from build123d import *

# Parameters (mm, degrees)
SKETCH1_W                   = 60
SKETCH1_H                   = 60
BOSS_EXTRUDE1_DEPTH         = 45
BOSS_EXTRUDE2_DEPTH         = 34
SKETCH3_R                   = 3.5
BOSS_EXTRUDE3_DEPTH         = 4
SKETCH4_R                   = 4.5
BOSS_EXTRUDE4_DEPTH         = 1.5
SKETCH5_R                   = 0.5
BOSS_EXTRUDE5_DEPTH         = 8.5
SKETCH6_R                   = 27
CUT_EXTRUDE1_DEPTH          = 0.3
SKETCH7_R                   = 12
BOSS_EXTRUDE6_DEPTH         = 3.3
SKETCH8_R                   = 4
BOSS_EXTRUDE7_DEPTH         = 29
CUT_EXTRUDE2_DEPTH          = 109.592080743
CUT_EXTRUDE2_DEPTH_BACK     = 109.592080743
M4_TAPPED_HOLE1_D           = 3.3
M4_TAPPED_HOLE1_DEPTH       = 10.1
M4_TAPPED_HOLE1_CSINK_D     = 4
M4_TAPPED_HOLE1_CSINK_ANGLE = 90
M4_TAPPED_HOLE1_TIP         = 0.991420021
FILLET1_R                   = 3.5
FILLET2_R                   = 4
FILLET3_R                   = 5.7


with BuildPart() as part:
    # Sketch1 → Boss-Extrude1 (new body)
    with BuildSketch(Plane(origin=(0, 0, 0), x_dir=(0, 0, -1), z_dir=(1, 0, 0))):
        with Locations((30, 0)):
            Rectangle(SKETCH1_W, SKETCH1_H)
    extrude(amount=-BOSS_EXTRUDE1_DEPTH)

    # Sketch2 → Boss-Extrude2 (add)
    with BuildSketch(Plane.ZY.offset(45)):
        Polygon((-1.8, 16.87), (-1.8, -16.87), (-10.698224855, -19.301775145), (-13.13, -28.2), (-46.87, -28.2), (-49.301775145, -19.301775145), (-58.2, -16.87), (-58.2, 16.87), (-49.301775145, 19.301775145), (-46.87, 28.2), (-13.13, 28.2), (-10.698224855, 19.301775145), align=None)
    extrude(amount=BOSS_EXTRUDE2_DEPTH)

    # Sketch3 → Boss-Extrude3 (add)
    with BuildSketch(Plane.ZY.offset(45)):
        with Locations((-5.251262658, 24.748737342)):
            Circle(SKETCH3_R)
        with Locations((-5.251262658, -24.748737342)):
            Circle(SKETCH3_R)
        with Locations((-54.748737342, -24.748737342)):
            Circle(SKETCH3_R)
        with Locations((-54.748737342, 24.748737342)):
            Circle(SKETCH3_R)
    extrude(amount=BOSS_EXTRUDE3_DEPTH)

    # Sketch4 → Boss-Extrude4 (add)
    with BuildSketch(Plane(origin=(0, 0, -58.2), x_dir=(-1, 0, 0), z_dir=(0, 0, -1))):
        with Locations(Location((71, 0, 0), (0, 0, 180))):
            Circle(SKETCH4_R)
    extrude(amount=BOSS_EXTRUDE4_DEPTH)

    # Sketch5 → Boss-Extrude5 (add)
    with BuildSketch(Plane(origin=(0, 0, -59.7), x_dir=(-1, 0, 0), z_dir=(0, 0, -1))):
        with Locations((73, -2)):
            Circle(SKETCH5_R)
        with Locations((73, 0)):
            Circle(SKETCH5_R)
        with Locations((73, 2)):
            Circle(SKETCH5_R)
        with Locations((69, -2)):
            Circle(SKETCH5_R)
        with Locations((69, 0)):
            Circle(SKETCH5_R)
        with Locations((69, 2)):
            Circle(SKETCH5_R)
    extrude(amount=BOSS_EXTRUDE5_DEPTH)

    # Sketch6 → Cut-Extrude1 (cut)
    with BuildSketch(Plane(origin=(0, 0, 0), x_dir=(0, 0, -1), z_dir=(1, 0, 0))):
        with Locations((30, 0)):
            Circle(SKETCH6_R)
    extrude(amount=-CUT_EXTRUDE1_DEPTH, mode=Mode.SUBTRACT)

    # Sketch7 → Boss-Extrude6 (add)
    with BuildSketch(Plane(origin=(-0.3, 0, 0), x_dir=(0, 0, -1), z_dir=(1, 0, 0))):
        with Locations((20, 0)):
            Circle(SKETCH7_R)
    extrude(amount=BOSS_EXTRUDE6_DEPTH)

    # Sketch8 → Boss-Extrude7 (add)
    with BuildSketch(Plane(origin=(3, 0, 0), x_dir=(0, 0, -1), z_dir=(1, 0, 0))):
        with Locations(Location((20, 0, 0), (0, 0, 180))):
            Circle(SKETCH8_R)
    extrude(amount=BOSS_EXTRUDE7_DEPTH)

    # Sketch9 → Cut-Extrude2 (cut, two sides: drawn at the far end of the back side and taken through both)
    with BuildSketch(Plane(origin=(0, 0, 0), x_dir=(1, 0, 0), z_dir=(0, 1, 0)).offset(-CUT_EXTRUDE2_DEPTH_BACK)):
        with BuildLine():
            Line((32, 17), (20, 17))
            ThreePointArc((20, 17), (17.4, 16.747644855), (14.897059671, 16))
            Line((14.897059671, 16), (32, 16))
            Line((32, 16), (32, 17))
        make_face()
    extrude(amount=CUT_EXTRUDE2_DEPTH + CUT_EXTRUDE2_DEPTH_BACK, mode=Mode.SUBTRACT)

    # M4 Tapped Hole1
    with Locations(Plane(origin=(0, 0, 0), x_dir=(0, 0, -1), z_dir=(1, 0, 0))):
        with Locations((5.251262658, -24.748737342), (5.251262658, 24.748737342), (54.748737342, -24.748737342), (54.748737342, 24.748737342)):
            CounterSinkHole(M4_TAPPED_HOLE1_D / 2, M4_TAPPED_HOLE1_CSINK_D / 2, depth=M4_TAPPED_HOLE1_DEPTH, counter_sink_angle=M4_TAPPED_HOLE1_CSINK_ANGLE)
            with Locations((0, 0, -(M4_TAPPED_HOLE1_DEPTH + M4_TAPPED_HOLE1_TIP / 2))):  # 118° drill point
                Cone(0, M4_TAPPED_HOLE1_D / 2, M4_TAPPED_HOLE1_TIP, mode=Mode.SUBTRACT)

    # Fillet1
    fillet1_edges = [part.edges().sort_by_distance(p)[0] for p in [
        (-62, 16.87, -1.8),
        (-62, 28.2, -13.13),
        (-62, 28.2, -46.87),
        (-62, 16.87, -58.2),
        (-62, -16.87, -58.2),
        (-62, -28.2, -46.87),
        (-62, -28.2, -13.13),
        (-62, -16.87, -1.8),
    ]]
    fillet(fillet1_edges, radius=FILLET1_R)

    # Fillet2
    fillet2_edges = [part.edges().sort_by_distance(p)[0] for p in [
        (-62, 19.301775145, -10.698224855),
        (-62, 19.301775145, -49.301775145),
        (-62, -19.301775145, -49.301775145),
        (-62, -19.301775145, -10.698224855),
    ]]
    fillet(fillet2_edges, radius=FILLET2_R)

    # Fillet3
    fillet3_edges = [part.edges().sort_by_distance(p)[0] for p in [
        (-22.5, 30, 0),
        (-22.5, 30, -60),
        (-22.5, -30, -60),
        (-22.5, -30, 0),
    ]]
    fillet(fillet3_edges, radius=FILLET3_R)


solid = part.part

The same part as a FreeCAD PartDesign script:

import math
import FreeCAD as App
import Part
import Sketcher


def edges_at(feature, points):
    """Names of the edges that pass closest to the given points."""
    edges = feature.Shape.Edges
    near = lambda p: min(range(len(edges)), key=lambda i: edges[i].distToShape(Part.Vertex(*p))[0])
    return sorted({f"Edge{near(p) + 1}" for p in points})


def add_polygon(sketch, points):
    """Adds a closed chain of lines whose ends are joined by coincident constraints."""
    first, n = sketch.GeometryCount, len(points)
    for a, b in zip(points, points[1:] + points[:1]):
        sketch.addGeometry(Part.LineSegment(App.Vector(*a, 0), App.Vector(*b, 0)), False)
    for i in range(n):
        sketch.addConstraint(Sketcher.Constraint("Coincident", first + i, 2, first + (i + 1) % n, 1))

doc = App.newDocument("Part")
body = doc.addObject("PartDesign::Body", "Body")

sketch1 = body.newObject("Sketcher::SketchObject", "Sketch")
sketch1.AttachmentSupport = (doc.getObject("YZ_Plane"), [""])
sketch1.MapMode = "FlatFace"
add_polygon(sketch1, [(30, 0), (-30, 0), (-30, -60), (30, -60)])
sketch1.addConstraint([
    Sketcher.Constraint("Horizontal", 0),
    Sketcher.Constraint("Vertical", 1),
    Sketcher.Constraint("Horizontal", 2),
    Sketcher.Constraint("Vertical", 3),
    Sketcher.Constraint("Symmetric", 0, 2, 3, 2, -1, 1),
    Sketcher.Constraint("Equal", 2, 1),
    Sketcher.Constraint("DistanceX", 0, 2, 0, 1, 60.0),
])
pad1 = body.newObject("PartDesign::Pad", "Pad")
pad1.Profile = sketch1
pad1.Length = 45
pad1.Reversed = True

sketch2 = body.newObject("Sketcher::SketchObject", "Sketch001")
sketch2.AttachmentSupport = (doc.getObject("YZ_Plane"), [""])
sketch2.MapMode = "FlatFace"
sketch2.AttachmentOffset = App.Placement(App.Vector(0, 0, -45), App.Rotation())
add_polygon(sketch2, [(-16.87, -1.8), (16.87, -1.8), (19.301775, -10.698225), (28.2, -13.13), (28.2, -46.87), (19.301775, -49.301775), (16.87, -58.2), (-16.87, -58.2), (-19.301775, -49.301775), (-28.2, -46.87), (-28.2, -13.13), (-19.301775, -10.698225)])
sketch2.addConstraint([
    Sketcher.Constraint("Horizontal", 0),
    Sketcher.Constraint("Vertical", 3),
    Sketcher.Constraint("Horizontal", 6),
    Sketcher.Constraint("Vertical", 9),
    Sketcher.Constraint("Symmetric", 4, 2, 7, 2, -2),
    Sketcher.Constraint("Symmetric", 3, 2, 8, 2, -2),
    Sketcher.Constraint("Symmetric", 1, 2, 10, 2, -2),
    Sketcher.Constraint("Perpendicular", 1, 4),
    Sketcher.Constraint("Perpendicular", 2, 5),
    Sketcher.Constraint("Perpendicular", 4, 7),
    Sketcher.Constraint("Perpendicular", 5, 8),
    Sketcher.Constraint("Perpendicular", 7, 10),
    Sketcher.Constraint("Perpendicular", 8, 11),
    Sketcher.Constraint("Vertical", 1, 2, 4, 2),
    Sketcher.Constraint("Vertical", 0, 2, 5, 2),
    Sketcher.Constraint("Equal", 6, 3),
    Sketcher.Constraint("Equal", 1, 2),
    Sketcher.Constraint("DistanceX", 0, 1, 0, 2, 33.74),
    Sketcher.Constraint("DistanceY", 0, 2, -1, 1, 1.8),
    Sketcher.Constraint("DistanceX", -1, 1, 2, 2, 28.2),
    Sketcher.Constraint("Distance", 1, 9.224529),
])
pad2 = body.newObject("PartDesign::Pad", "Pad001")
pad2.Profile = sketch2
pad2.Length = 34
pad2.Reversed = True

sketch3 = body.newObject("Sketcher::SketchObject", "Sketch002")
sketch3.AttachmentSupport = (doc.getObject("YZ_Plane"), [""])
sketch3.MapMode = "FlatFace"
sketch3.AttachmentOffset = App.Placement(App.Vector(0, 0, -45), App.Rotation())
sketch3.addGeometry([
    Part.Circle(App.Vector(24.748737, -5.251263, 0), App.Vector(0, 0, 1), 3.5),
    Part.Circle(App.Vector(-24.748737, -5.251263, 0), App.Vector(0, 0, 1), 3.5),
    Part.Circle(App.Vector(-24.748737, -54.748737, 0), App.Vector(0, 0, 1), 3.5),
    Part.Circle(App.Vector(24.748737, -54.748737, 0), App.Vector(0, 0, 1), 3.5),
], False)
sketch3.addConstraint([
    Sketcher.Constraint("Equal", 0, 1),
    Sketcher.Constraint("Equal", 1, 2),
    Sketcher.Constraint("Equal", 2, 3),
    Sketcher.Constraint("Symmetric", 0, 3, 1, 3, -2),
    Sketcher.Constraint("Symmetric", 2, 3, 3, 3, -2),
    Sketcher.Constraint("Vertical", 1, 3, 2, 3),
    Sketcher.Constraint("Diameter", 0, 7.0),
    Sketcher.Constraint("DistanceX", -1, 1, 0, 3, 24.748737),
    Sketcher.Constraint("DistanceY", 0, 3, -1, 1, 5.251263),
    Sketcher.Constraint("DistanceY", 2, 3, -1, 1, 54.748737),
])
pad3 = body.newObject("PartDesign::Pad", "Pad002")
pad3.Profile = sketch3
pad3.Length = 4
pad3.Reversed = True

sketch4 = body.newObject("Sketcher::SketchObject", "Sketch003")
sketch4.AttachmentSupport = (doc.getObject("XY_Plane"), [""])
sketch4.MapMode = "FlatFace"
sketch4.AttachmentOffset = App.Placement(App.Vector(0, 0, -58.2), App.Rotation())
sketch4.addGeometry(Part.Circle(App.Vector(-71, 0, 0), App.Vector(0, 0, 1), 4.5), False)
sketch4.addConstraint([
    Sketcher.Constraint("PointOnObject", 0, 3, -1),
    Sketcher.Constraint("Diameter", 0, 9.0),
    Sketcher.Constraint("DistanceX", 0, 3, -1, 1, 71.0),
])
pad4 = body.newObject("PartDesign::Pad", "Pad003")
pad4.Profile = sketch4
pad4.Length = 1.5
pad4.Reversed = True

sketch5 = body.newObject("Sketcher::SketchObject", "Sketch004")
sketch5.AttachmentSupport = (doc.getObject("XY_Plane"), [""])
sketch5.MapMode = "FlatFace"
sketch5.AttachmentOffset = App.Placement(App.Vector(0, 0, -59.7), App.Rotation())
sketch5.addGeometry([
    Part.Circle(App.Vector(-73, -2, 0), App.Vector(0, 0, 1), 0.5),
    Part.Circle(App.Vector(-73, 0, 0), App.Vector(0, 0, 1), 0.5),
    Part.Circle(App.Vector(-73, 2, 0), App.Vector(0, 0, 1), 0.5),
    Part.Circle(App.Vector(-69, -2, 0), App.Vector(0, 0, 1), 0.5),
    Part.Circle(App.Vector(-69, 0, 0), App.Vector(0, 0, 1), 0.5),
    Part.Circle(App.Vector(-69, 2, 0), App.Vector(0, 0, 1), 0.5),
], False)
sketch5.addConstraint([
    Sketcher.Constraint("Equal", 0, 1),
    Sketcher.Constraint("Equal", 1, 2),
    Sketcher.Constraint("Equal", 2, 3),
    Sketcher.Constraint("Equal", 3, 4),
    Sketcher.Constraint("Equal", 4, 5),
    Sketcher.Constraint("Symmetric", 0, 3, 2, 3, -1),
    Sketcher.Constraint("Symmetric", 3, 3, 5, 3, -1),
    Sketcher.Constraint("PointOnObject", 1, 3, -1),
    Sketcher.Constraint("PointOnObject", 4, 3, -1),
    Sketcher.Constraint("Horizontal", 0, 3, 3, 3),
    Sketcher.Constraint("Vertical", 0, 3, 1, 3),
    Sketcher.Constraint("Vertical", 3, 3, 4, 3),
    Sketcher.Constraint("Diameter", 0, 1.0),
    Sketcher.Constraint("DistanceX", 0, 3, -1, 1, 73.0),
    Sketcher.Constraint("DistanceY", 0, 3, -1, 1, 2.0),
    Sketcher.Constraint("DistanceX", 3, 3, -1, 1, 69.0),
])
pad5 = body.newObject("PartDesign::Pad", "Pad004")
pad5.Profile = sketch5
pad5.Length = 8.5
pad5.Reversed = True

sketch6 = body.newObject("Sketcher::SketchObject", "Sketch005")
sketch6.AttachmentSupport = (doc.getObject("YZ_Plane"), [""])
sketch6.MapMode = "FlatFace"
sketch6.addGeometry(Part.Circle(App.Vector(0, -30, 0), App.Vector(0, 0, 1), 27), False)
sketch6.addConstraint([
    Sketcher.Constraint("PointOnObject", 0, 3, -2),
    Sketcher.Constraint("Diameter", 0, 54.0),
    Sketcher.Constraint("DistanceY", 0, 3, -1, 1, 30.0),
])
pocket1 = body.newObject("PartDesign::Pocket", "Pocket")
pocket1.Profile = sketch6
pocket1.Length = 0.3

sketch7 = body.newObject("Sketcher::SketchObject", "Sketch006")
sketch7.AttachmentSupport = (doc.getObject("YZ_Plane"), [""])
sketch7.MapMode = "FlatFace"
sketch7.AttachmentOffset = App.Placement(App.Vector(0, 0, -0.3), App.Rotation())
sketch7.addGeometry(Part.Circle(App.Vector(0, -20, 0), App.Vector(0, 0, 1), 12), False)
sketch7.addConstraint([
    Sketcher.Constraint("PointOnObject", 0, 3, -2),
    Sketcher.Constraint("Diameter", 0, 24.0),
    Sketcher.Constraint("DistanceY", 0, 3, -1, 1, 20.0),
])
pad6 = body.newObject("PartDesign::Pad", "Pad005")
pad6.Profile = sketch7
pad6.Length = 3.3

sketch8 = body.newObject("Sketcher::SketchObject", "Sketch007")
sketch8.AttachmentSupport = (doc.getObject("YZ_Plane"), [""])
sketch8.MapMode = "FlatFace"
sketch8.AttachmentOffset = App.Placement(App.Vector(0, 0, 3), App.Rotation())
sketch8.addGeometry(Part.Circle(App.Vector(0, -20, 0), App.Vector(0, 0, 1), 4), False)
sketch8.addConstraint([
    Sketcher.Constraint("PointOnObject", 0, 3, -2),
    Sketcher.Constraint("Diameter", 0, 8.0),
    Sketcher.Constraint("DistanceY", 0, 3, -1, 1, 20.0),
])
pad7 = body.newObject("PartDesign::Pad", "Pad006")
pad7.Profile = sketch8
pad7.Length = 29

sketch9 = body.newObject("Sketcher::SketchObject", "Sketch008")
sketch9.AttachmentSupport = (doc.getObject("XZ_Plane"), [""])
sketch9.MapMode = "FlatFace"
sketch9.addGeometry([
    Part.LineSegment(App.Vector(32, -17, 0), App.Vector(20, -17, 0)),
    Part.ArcOfCircle(Part.Circle(App.Vector(20, -3.48, 0), App.Vector(0, 0, 1), 13.52), math.radians(-112.174978), math.radians(-90)),
    Part.LineSegment(App.Vector(14.89706, -16, 0), App.Vector(32, -16, 0)),
    Part.LineSegment(App.Vector(32, -16, 0), App.Vector(32, -17, 0)),
], False)
sketch9.addConstraint([
    Sketcher.Constraint("Tangent", 0, 2, 1, 2),
    Sketcher.Constraint("Coincident", 1, 1, 2, 1),
    Sketcher.Constraint("Coincident", 2, 2, 3, 1),
    Sketcher.Constraint("Coincident", 3, 2, 0, 1),
    Sketcher.Constraint("Horizontal", 0),
    Sketcher.Constraint("Horizontal", 2),
    Sketcher.Constraint("Vertical", 3),
    Sketcher.Constraint("DistanceX", 0, 2, 0, 1, 12.0),
    Sketcher.Constraint("DistanceY", 3, 2, 3, 1, 1.0),
    Sketcher.Constraint("Radius", 1, 13.52),
    Sketcher.Constraint("DistanceX", -1, 1, 1, 3, 20.0),
    Sketcher.Constraint("DistanceY", 0, 2, -1, 1, 17.0),
])
pocket2 = body.newObject("PartDesign::Pocket", "Pocket001")
pocket2.Profile = sketch9
pocket2.Type = "ThroughAll"
pocket2.Midplane = True

sketch10 = body.newObject("Sketcher::SketchObject", "Sketch009")
sketch10.AttachmentSupport = (doc.getObject("YZ_Plane"), [""])
sketch10.MapMode = "FlatFace"
sketch10.addGeometry([
    Part.Circle(App.Vector(-24.748737, -5.251263, 0), App.Vector(0, 0, 1), 1.65),
    Part.Circle(App.Vector(24.748737, -5.251263, 0), App.Vector(0, 0, 1), 1.65),
    Part.Circle(App.Vector(-24.748737, -54.748737, 0), App.Vector(0, 0, 1), 1.65),
    Part.Circle(App.Vector(24.748737, -54.748737, 0), App.Vector(0, 0, 1), 1.65),
], False)
sketch10.addConstraint([
    Sketcher.Constraint("Equal", 0, 1),
    Sketcher.Constraint("Equal", 1, 2),
    Sketcher.Constraint("Equal", 2, 3),
    Sketcher.Constraint("Symmetric", 0, 3, 1, 3, -2),
    Sketcher.Constraint("Symmetric", 2, 3, 3, 3, -2),
    Sketcher.Constraint("Vertical", 0, 3, 2, 3),
    Sketcher.Constraint("Diameter", 0, 3.3),
    Sketcher.Constraint("DistanceX", 0, 3, -1, 1, 24.748737),
    Sketcher.Constraint("DistanceY", 0, 3, -1, 1, 5.251263),
    Sketcher.Constraint("DistanceY", 2, 3, -1, 1, 54.748737),
])
doc.recompute()
hole = body.newObject("PartDesign::Hole", "Hole")
hole.Profile = sketch10
hole.ThreadType = "None"
hole.Diameter = 3.3
hole.DepthType = "Dimension"
hole.Depth = 10.1
hole.DrillPoint = "Angled"
hole.DrillPointAngle = 118
hole.HoleCutType = "Countersink"
hole.HoleCutDiameter = 4
hole.HoleCutCountersinkAngle = 90
doc.recompute()

fillet = body.newObject("PartDesign::Fillet", "Fillet")
fillet.Base = (hole, edges_at(hole, [
    (-62, 16.87, -1.8),
    (-62, 28.2, -13.13),
    (-62, 28.2, -46.87),
    (-62, 16.87, -58.2),
    (-62, -16.87, -58.2),
    (-62, -28.2, -46.87),
    (-62, -28.2, -13.13),
    (-62, -16.87, -1.8),
]))
fillet.Radius = 3.5
doc.recompute()

fillet2 = body.newObject("PartDesign::Fillet", "Fillet001")
fillet2.Base = (fillet, edges_at(fillet, [
    (-62, 19.302, -10.698),
    (-62, 19.302, -49.302),
    (-62, -19.302, -49.302),
    (-62, -19.302, -10.698),
]))
fillet2.Radius = 4
doc.recompute()

fillet3 = body.newObject("PartDesign::Fillet", "Fillet002")
fillet3.Base = (fillet2, edges_at(fillet2, [
    (-22.5, 30, 0),
    (-22.5, 30, -60),
    (-22.5, -30, -60),
    (-22.5, -30, 0),
]))
fillet3.Radius = 5.7

doc.recompute()
